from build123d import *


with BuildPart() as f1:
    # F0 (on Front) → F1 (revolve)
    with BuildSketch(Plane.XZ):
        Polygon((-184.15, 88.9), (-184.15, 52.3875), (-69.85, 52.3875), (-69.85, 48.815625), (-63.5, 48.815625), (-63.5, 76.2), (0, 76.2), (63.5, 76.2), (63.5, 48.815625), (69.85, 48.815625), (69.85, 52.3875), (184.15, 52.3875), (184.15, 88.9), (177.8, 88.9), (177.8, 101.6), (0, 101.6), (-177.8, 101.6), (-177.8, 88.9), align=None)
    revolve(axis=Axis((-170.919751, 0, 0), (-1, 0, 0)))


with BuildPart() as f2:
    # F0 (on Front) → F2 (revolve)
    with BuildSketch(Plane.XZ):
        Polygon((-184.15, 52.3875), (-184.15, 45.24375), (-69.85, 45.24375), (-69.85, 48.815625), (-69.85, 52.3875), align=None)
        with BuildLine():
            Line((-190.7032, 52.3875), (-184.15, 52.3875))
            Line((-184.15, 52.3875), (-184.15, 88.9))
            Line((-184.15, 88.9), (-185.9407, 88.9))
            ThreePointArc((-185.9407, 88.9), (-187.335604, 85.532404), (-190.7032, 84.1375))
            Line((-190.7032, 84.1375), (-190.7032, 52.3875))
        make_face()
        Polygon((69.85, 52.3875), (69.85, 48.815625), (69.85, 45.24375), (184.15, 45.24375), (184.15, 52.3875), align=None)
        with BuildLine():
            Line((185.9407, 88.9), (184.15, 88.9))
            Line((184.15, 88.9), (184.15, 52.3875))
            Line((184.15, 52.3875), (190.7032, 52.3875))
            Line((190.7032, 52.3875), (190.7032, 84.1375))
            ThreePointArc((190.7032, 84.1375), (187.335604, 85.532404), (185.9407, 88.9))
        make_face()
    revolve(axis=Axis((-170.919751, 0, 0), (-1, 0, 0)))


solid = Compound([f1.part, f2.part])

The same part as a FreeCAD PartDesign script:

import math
import FreeCAD as App
import Part
import Sketcher

V = App.Vector
Q = App.Units.Quantity


def add_polygon(sketch, points):
    """Adds a closed chain of lines whose ends are joined by coincident constraints."""
    first, n = sketch.GeometryCount, len(points)
    for a, b in zip(points, points[1:] + points[:1]):
        sketch.addGeometry(Part.LineSegment(App.Vector(*a, 0), App.Vector(*b, 0)), False)
    for i in range(n):
        sketch.addConstraint(Sketcher.Constraint("Coincident", first + i, 2, first + (i + 1) % n, 1))

doc = App.newDocument("Part")
body = doc.addObject("PartDesign::Body", "Body")

sketch1 = body.newObject("Sketcher::SketchObject", "Sketch")
sketch1.AttachmentSupport = (doc.getObject("XZ_Plane"), [""])
sketch1.MapMode = "FlatFace"
add_polygon(sketch1, [(-184.15, 88.9), (-184.15, 52.3875), (-69.85, 52.3875), (-69.85, 48.815625), (-63.5, 48.815625), (-63.5, 76.2), (63.5, 76.2), (63.5, 48.815625), (69.85, 48.815625), (69.85, 52.3875), (184.15, 52.3875), (184.15, 88.9), (177.8, 88.9), (177.8, 101.6), (-177.8, 101.6), (-177.8, 88.9)])
sketch1.addConstraint(Sketcher.Constraint("Vertical", 0))
sketch1.addConstraint(Sketcher.Constraint("Horizontal", 1))
sketch1.addConstraint(Sketcher.Constraint("Vertical", 2))
sketch1.addConstraint(Sketcher.Constraint("Horizontal", 3))
sketch1.addConstraint(Sketcher.Constraint("Vertical", 4))
sketch1.addConstraint(Sketcher.Constraint("Horizontal", 5))
sketch1.addConstraint(Sketcher.Constraint("Vertical", 6))
sketch1.addConstraint(Sketcher.Constraint("Horizontal", 7))
sketch1.addConstraint(Sketcher.Constraint("Vertical", 8))
sketch1.addConstraint(Sketcher.Constraint("Horizontal", 9))
sketch1.addConstraint(Sketcher.Constraint("Vertical", 10))
sketch1.addConstraint(Sketcher.Constraint("Horizontal", 11))
sketch1.addConstraint(Sketcher.Constraint("Vertical", 12))
sketch1.addConstraint(Sketcher.Constraint("Horizontal", 13))
sketch1.addConstraint(Sketcher.Constraint("Vertical", 14))
sketch1.addConstraint(Sketcher.Constraint("Horizontal", 15))
sketch1.addConstraint(Sketcher.Constraint("Symmetric", 3, 2, 6, 2, -2))
sketch1.addConstraint(Sketcher.Constraint("Symmetric", 1, 2, 8, 2, -2))
sketch1.addConstraint(Sketcher.Constraint("Symmetric", 11, 2, 14, 2, -2))
sketch1.addConstraint(Sketcher.Constraint("Equal", 1, 9))
sketch1.addConstraint(Sketcher.Constraint("Equal", 7, 11))
sketch1.addConstraint(Sketcher.Constraint("DistanceX", 5, 1, 5, 2, Q("5 in")))
sketch1.addConstraint(Sketcher.Constraint("DistanceX", 13, 2, 13, 1, Q("14 in")))
sketch1.addConstraint(Sketcher.Constraint("DistanceY", 12, 1, 12, 2, Q("0.5 in")))
sketch1.addConstraint(Sketcher.Constraint("DistanceY", -1, 1, 4, 2, Q("3 in")))
sketch1.addConstraint(Sketcher.Constraint("DistanceY", -1, 1, 12, 2, Q("4 in")))
sketch1.addConstraint(Sketcher.Constraint("DistanceX", 3, 1, 3, 2, Q("0.25 in")))
sketch1.addConstraint(Sketcher.Constraint("DistanceY", 0, 2, 0, 1, Q("1.4375 in")))
sketch1.addConstraint(Sketcher.Constraint("DistanceY", 2, 2, 2, 1, Q("0.140625 in")))
revolution = body.newObject("PartDesign::Revolution", "Revolution")
revolution.Profile = sketch1
revolution.ReferenceAxis = (sketch1, ["H_Axis"])
revolution.Angle = 360
body2 = doc.addObject("PartDesign::Body", "Body001")
body2.AllowCompound = True

sketch2 = body2.newObject("Sketcher::SketchObject", "Sketch001")
sketch2.AttachmentSupport = (doc.getObject("XZ_Plane001"), [""])
sketch2.MapMode = "FlatFace"
add_polygon(sketch2, [(-184.15, 52.3875), (-184.15, 45.24375), (-69.85, 45.24375), (-69.85, 52.3875)])
sketch2.addGeometry(Part.LineSegment(V(-190.7032, 52.3875, 0), V(-184.15, 52.3875, 0)), False)
sketch2.addGeometry(Part.LineSegment(V(-184.15, 52.3875, 0), V(-184.15, 88.9, 0)), False)
sketch2.addGeometry(Part.LineSegment(V(-184.15, 88.9, 0), V(-185.9407, 88.9, 0)), False)
sketch2.addGeometry(Part.ArcOfCircle(Part.Circle(V(-190.7032, 88.9, 0), V(0, 0, 1), 4.7625), math.radians(-89.999998), math.radians(-0.000002)), False)
sketch2.addGeometry(Part.LineSegment(V(-190.7032, 84.1375, 0), V(-190.7032, 52.3875, 0)), False)
add_polygon(sketch2, [(69.85, 52.3875), (69.85, 45.24375), (184.15, 45.24375), (184.15, 52.3875)])
sketch2.addGeometry(Part.LineSegment(V(185.9407, 88.9, 0), V(184.15, 88.9, 0)), False)
sketch2.addGeometry(Part.LineSegment(V(184.15, 88.9, 0), V(184.15, 52.3875, 0)), False)
sketch2.addGeometry(Part.LineSegment(V(184.15, 52.3875, 0), V(190.7032, 52.3875, 0)), False)
sketch2.addGeometry(Part.LineSegment(V(190.7032, 52.3875, 0), V(190.7032, 84.1375, 0)), False)
sketch2.addGeometry(Part.ArcOfCircle(Part.Circle(V(190.7032, 88.9, 0), V(0, 0, 1), 4.7625), math.radians(-179.999998), math.radians(-90.000002)), False)
sketch2.addConstraint(Sketcher.Constraint("Coincident", 4, 2, 5, 1))
sketch2.addConstraint(Sketcher.Constraint("Coincident", 5, 2, 6, 1))
sketch2.addConstraint(Sketcher.Constraint("Coincident", 6, 2, 7, 2))
sketch2.addConstraint(Sketcher.Constraint("Coincident", 7, 1, 8, 1))
sketch2.addConstraint(Sketcher.Constraint("Coincident", 8, 2, 4, 1))
sketch2.addConstraint(Sketcher.Constraint("Coincident", 13, 2, 14, 1))
sketch2.addConstraint(Sketcher.Constraint("Coincident", 14, 2, 15, 1))
sketch2.addConstraint(Sketcher.Constraint("Coincident", 15, 2, 16, 1))
sketch2.addConstraint(Sketcher.Constraint("Coincident", 16, 2, 17, 2))
sketch2.addConstraint(Sketcher.Constraint("Coincident", 17, 1, 13, 1))
sketch2.addConstraint(Sketcher.Constraint("Vertical", 0))
sketch2.addConstraint(Sketcher.Constraint("Horizontal", 1))
sketch2.addConstraint(Sketcher.Constraint("Vertical", 2))
sketch2.addConstraint(Sketcher.Constraint("Horizontal", 3))
sketch2.addConstraint(Sketcher.Constraint("Horizontal", 4))
sketch2.addConstraint(Sketcher.Constraint("Vertical", 5))
sketch2.addConstraint(Sketcher.Constraint("Horizontal", 6))
sketch2.addConstraint(Sketcher.Constraint("Vertical", 8))
sketch2.addConstraint(Sketcher.Constraint("Vertical", 9))
sketch2.addConstraint(Sketcher.Constraint("Horizontal", 10))
sketch2.addConstraint(Sketcher.Constraint("Vertical", 11))
sketch2.addConstraint(Sketcher.Constraint("Horizontal", 12))
sketch2.addConstraint(Sketcher.Constraint("Horizontal", 13))
sketch2.addConstraint(Sketcher.Constraint("Vertical", 14))
sketch2.addConstraint(Sketcher.Constraint("Horizontal", 15))
sketch2.addConstraint(Sketcher.Constraint("Vertical", 16))
sketch2.addConstraint(Sketcher.Constraint("Coincident", 4, 2, 3, 2))
sketch2.addConstraint(Sketcher.Constraint("Coincident", 14, 2, 11, 2))
sketch2.addConstraint(Sketcher.Constraint("Equal", 7, 17))
sketch2.addConstraint(Sketcher.Constraint("Symmetric", 7, 3, 17, 3, -2))
sketch2.addConstraint(Sketcher.Constraint("Symmetric", 1, 2, 9, 2, -2))
sketch2.addConstraint(Sketcher.Constraint("Symmetric", 3, 2, 11, 2, -2))
sketch2.addConstraint(Sketcher.Constraint("Horizontal", 17, 3, 5, 2))
sketch2.addConstraint(Sketcher.Constraint("Horizontal", 6, 2, 13, 2))
sketch2.addConstraint(Sketcher.Constraint("Vertical", 17, 3, 15, 2))
sketch2.addConstraint(Sketcher.Constraint("Equal", 4, 15))
sketch2.addConstraint(Sketcher.Constraint("DistanceX", 1, 1, 1, 2, Q("4.5 in")))
sketch2.addConstraint(Sketcher.Constraint("Radius", 7, Q("0.1875 in")))
sketch2.addConstraint(Sketcher.Constraint("DistanceX", 0, 2, 9, 2, Q("10 in")))
sketch2.addConstraint(Sketcher.Constraint("DistanceY", 8, 2, 8, 1, Q("1.25 in")))
sketch2.addConstraint(Sketcher.Constraint("DistanceY", -1, 1, 7, 3, Q("3.5 in")))
sketch2.addConstraint(Sketcher.Constraint("DistanceX", 4, 1, 4, 2, Q("0.258 in")))
sketch2.addConstraint(Sketcher.Constraint("DistanceY", 0, 2, 0, 1, Q("0.28125 in")))
revolution2 = body2.newObject("PartDesign::Revolution", "Revolution001")
revolution2.Profile = sketch2
revolution2.ReferenceAxis = (sketch2, ["H_Axis"])
revolution2.Angle = 360

doc.recompute()
